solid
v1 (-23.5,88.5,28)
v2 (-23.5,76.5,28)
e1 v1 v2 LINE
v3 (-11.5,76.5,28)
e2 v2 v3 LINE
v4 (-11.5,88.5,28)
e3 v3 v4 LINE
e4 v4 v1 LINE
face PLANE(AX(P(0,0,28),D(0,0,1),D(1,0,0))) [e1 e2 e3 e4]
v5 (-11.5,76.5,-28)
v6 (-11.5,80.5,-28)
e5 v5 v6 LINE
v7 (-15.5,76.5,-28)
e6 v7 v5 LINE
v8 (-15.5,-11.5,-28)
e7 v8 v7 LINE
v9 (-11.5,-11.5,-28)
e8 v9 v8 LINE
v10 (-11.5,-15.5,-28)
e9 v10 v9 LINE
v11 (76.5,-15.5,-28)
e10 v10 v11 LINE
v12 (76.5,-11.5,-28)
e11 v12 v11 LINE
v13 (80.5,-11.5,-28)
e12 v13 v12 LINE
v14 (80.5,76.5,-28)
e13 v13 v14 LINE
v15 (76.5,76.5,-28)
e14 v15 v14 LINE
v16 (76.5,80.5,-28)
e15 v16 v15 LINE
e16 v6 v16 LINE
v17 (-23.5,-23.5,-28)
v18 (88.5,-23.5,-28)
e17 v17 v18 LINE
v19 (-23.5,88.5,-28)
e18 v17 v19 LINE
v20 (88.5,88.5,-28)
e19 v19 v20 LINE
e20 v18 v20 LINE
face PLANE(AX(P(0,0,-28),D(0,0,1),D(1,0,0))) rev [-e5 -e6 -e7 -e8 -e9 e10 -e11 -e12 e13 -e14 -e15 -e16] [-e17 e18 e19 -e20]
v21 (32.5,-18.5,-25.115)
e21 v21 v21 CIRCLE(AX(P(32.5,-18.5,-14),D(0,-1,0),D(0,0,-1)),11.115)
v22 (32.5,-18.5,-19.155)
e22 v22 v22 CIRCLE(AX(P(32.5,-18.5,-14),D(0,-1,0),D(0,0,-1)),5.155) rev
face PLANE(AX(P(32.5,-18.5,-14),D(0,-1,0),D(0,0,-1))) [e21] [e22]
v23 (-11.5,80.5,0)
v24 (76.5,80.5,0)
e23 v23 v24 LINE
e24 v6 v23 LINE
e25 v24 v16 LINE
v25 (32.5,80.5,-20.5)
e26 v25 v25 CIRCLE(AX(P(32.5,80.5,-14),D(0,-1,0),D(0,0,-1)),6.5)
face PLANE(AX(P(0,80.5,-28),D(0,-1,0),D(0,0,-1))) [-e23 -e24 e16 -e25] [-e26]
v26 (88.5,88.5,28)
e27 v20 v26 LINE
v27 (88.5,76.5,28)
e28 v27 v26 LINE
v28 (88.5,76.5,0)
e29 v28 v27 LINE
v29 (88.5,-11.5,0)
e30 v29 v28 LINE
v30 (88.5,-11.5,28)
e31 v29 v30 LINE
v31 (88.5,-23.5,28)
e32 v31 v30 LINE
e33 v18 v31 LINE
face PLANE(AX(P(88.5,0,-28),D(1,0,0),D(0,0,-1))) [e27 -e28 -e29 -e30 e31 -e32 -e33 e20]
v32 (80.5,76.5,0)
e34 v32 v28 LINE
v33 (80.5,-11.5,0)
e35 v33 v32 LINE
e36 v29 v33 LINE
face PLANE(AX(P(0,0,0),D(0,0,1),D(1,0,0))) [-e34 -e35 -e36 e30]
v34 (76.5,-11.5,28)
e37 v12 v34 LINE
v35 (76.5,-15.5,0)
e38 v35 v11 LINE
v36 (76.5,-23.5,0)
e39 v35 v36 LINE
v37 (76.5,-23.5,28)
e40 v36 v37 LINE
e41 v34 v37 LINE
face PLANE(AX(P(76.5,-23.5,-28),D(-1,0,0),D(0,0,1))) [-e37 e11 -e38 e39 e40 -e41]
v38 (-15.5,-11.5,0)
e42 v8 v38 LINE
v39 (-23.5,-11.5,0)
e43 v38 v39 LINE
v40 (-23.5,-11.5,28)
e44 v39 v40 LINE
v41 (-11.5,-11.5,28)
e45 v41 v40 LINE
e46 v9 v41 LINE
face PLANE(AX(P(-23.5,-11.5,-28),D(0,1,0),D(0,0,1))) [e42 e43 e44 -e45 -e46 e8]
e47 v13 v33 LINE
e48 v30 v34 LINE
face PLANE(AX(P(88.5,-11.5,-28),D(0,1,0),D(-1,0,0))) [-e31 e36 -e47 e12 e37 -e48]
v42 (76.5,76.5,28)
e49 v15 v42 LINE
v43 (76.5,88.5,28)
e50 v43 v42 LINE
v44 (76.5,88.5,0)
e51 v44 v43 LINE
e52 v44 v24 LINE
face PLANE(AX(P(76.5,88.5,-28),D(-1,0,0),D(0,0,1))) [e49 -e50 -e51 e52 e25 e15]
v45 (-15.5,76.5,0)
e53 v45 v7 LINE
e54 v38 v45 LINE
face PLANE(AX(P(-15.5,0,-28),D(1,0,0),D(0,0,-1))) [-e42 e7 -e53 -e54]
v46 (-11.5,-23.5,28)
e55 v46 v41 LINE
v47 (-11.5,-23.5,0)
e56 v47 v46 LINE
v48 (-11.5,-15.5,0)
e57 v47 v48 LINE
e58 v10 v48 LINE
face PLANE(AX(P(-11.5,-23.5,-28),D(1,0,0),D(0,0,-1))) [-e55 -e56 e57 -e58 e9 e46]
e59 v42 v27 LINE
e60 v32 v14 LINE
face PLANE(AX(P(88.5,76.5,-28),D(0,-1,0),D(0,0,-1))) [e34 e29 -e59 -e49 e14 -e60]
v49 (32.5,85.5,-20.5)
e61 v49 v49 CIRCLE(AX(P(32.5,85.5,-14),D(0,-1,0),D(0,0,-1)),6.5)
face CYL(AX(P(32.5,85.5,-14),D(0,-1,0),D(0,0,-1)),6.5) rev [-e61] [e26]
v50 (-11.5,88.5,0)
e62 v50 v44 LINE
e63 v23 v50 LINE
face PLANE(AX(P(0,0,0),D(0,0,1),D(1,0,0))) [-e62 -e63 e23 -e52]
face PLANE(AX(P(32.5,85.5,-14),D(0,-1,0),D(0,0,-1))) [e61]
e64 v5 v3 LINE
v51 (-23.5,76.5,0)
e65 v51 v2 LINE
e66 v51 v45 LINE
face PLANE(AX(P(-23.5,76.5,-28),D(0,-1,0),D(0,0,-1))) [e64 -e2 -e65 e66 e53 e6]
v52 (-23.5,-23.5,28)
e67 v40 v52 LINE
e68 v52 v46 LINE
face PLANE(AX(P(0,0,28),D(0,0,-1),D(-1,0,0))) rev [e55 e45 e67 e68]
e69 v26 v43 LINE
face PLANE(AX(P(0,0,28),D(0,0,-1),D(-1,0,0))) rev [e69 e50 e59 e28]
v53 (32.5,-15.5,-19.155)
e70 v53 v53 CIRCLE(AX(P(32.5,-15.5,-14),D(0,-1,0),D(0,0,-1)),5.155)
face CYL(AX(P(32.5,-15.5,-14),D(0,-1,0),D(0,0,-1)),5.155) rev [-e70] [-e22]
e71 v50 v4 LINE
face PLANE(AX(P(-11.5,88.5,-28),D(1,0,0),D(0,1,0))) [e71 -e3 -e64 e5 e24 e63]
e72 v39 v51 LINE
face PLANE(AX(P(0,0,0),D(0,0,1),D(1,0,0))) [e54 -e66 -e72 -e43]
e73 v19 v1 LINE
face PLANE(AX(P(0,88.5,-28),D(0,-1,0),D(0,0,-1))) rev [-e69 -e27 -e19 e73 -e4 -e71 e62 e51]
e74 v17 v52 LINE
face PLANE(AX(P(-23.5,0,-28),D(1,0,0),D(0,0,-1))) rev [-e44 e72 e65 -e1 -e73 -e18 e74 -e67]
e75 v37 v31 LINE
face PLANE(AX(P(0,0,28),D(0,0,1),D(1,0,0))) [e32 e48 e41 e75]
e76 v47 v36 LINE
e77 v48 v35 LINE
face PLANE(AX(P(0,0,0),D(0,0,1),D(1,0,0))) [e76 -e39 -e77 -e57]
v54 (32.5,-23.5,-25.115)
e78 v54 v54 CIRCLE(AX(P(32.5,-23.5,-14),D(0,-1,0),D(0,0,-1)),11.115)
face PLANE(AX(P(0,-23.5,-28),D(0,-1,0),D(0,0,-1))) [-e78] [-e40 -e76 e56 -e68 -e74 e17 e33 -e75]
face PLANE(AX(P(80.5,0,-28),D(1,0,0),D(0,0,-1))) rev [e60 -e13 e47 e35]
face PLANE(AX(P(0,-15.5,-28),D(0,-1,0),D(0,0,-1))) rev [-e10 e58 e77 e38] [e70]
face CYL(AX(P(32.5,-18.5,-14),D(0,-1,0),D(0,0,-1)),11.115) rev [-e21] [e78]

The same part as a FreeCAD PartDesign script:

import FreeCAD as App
import Part
import Sketcher

V = App.Vector
Q = App.Units.Quantity

doc = App.newDocument("Part")
params = doc.addObject("Spreadsheet::Sheet", "Params")
for row, (alias, value) in enumerate([
    ("sketch1_width", "112 mm"),
    ("sketch1_width2", "96 mm"),
    ("pad1_length", "28 mm"),
    ("sketch2_diameter", "10.31 mm"),
    ("pocket1_length", "8 mm"),
    ("sketch3_diameter", "22.23 mm"),
    ("pocket2_length", "5 mm"),
    ("sketch4_diameter", "13 mm"),
    ("pocket3_length", "5 mm"),
    ("sketch5_width", "12 mm"),
    ("pad2_length", "28 mm"),
    ("pad2_length2", "28 mm"),
], start=1):
    params.set(f"A{row}", alias)
    params.set(f"B{row}", "=" + value)
    params.setAlias(f"B{row}", alias)

body = doc.addObject("PartDesign::Body", "Body")

# Sketch on XY plane
sketch1 = body.newObject("Sketcher::SketchObject", "Sketch")
sketch1.AttachmentSupport = (doc.getObject("XY_Plane"), [""])
sketch1.MapMode = "FlatFace"
sketch1.addGeometry(Part.LineSegment(V(-24, 88, 0), V(-24, -24, 0)), False)
sketch1.addGeometry(Part.LineSegment(V(-24, -24, 0), V(88, -24, 0)), False)
sketch1.addGeometry(Part.LineSegment(V(88, -24, 0), V(88, 88, 0)), False)
sketch1.addGeometry(Part.LineSegment(V(88, 88, 0), V(-24, 88, 0)), False)
sketch1.addGeometry(Part.LineSegment(V(80, -16, 0), V(-16, -16, 0)), False)
sketch1.addGeometry(Part.LineSegment(V(-16, -16, 0), V(-16, 80, 0)), False)
sketch1.addGeometry(Part.LineSegment(V(-16, 80, 0), V(80, 80, 0)), False)
sketch1.addGeometry(Part.LineSegment(V(80, 80, 0), V(80, -16, 0)), False)
sketch1.addConstraint(Sketcher.Constraint("Coincident", 0, 2, 1, 1))
sketch1.addConstraint(Sketcher.Constraint("Coincident", 1, 2, 2, 1))
sketch1.addConstraint(Sketcher.Constraint("Coincident", 2, 2, 3, 1))
sketch1.addConstraint(Sketcher.Constraint("Coincident", 3, 2, 0, 1))
sketch1.addConstraint(Sketcher.Constraint("Coincident", 4, 2, 5, 1))
sketch1.addConstraint(Sketcher.Constraint("Coincident", 5, 2, 6, 1))
sketch1.addConstraint(Sketcher.Constraint("Coincident", 6, 2, 7, 1))
sketch1.addConstraint(Sketcher.Constraint("Coincident", 7, 2, 4, 1))
sketch1.addConstraint(Sketcher.Constraint("Vertical", 0))
sketch1.addConstraint(Sketcher.Constraint("Horizontal", 1))
sketch1.addConstraint(Sketcher.Constraint("Vertical", 2))
sketch1.addConstraint(Sketcher.Constraint("Horizontal", 3))
sketch1.addConstraint(Sketcher.Constraint("Horizontal", 4))
sketch1.addConstraint(Sketcher.Constraint("Vertical", 5))
sketch1.addConstraint(Sketcher.Constraint("Horizontal", 6))
sketch1.addConstraint(Sketcher.Constraint("Vertical", 7))
sketch1.addConstraint(Sketcher.Constraint("Equal", 3, 0))
sketch1.addConstraint(Sketcher.Constraint("Equal", 6, 5))
sketch1.addConstraint(Sketcher.Constraint("DistanceX", 1, 1, 1, 2, Q("112 mm")))
sketch1.addConstraint(Sketcher.Constraint("DistanceX", 4, 2, 4, 1, Q("96 mm")))
sketch1.addConstraint(Sketcher.Constraint("DistanceX", 0, 2, 4, 2, Q("8 mm")))
sketch1.addConstraint(Sketcher.Constraint("DistanceY", 0, 2, 4, 2, Q("8 mm")))
sketch1.addConstraint(Sketcher.Constraint("DistanceX", 0, 2, -1, 1, Q("23.5 mm")))
sketch1.addConstraint(Sketcher.Constraint("DistanceY", 0, 2, -1, 1, Q("23.5 mm")))
sketch1.setExpression("Constraints[18]", "Params.sketch1_width")
sketch1.setExpression("Constraints[19]", "Params.sketch1_width2")
pad1 = body.newObject("PartDesign::Pad", "Pad")
pad1.Profile = sketch1
pad1.setExpression("Length", "Params.pad1_length")
pad1.Reversed = True

# Sketch on XZ plane
sketch2 = body.newObject("Sketcher::SketchObject", "Sketch001")
sketch2.AttachmentSupport = (doc.getObject("XZ_Plane"), [""])
sketch2.MapMode = "FlatFace"
sketch2.AttachmentOffset = App.Placement(V(0, 0, 23.5), App.Rotation())
sketch2.addGeometry(Part.Circle(V(32, -14, 0), V(0, 0, 1), 5), False)
sketch2.addConstraint(Sketcher.Constraint("Diameter", 0, Q("10.31 mm")))
sketch2.addConstraint(Sketcher.Constraint("DistanceY", 0, 3, -1, 1, Q("14 mm")))
sketch2.addConstraint(Sketcher.Constraint("DistanceX", -1, 1, 0, 3, Q("32.5 mm")))
sketch2.setExpression("Constraints[0]", "Params.sketch2_diameter")
pocket1 = body.newObject("PartDesign::Pocket", "Pocket")
pocket1.Profile = sketch2
pocket1.setExpression("Length", "Params.pocket1_length")

# Sketch on XZ plane
sketch3 = body.newObject("Sketcher::SketchObject", "Sketch002")
sketch3.AttachmentSupport = (doc.getObject("XZ_Plane"), [""])
sketch3.MapMode = "FlatFace"
sketch3.AttachmentOffset = App.Placement(V(0, 0, 23.5), App.Rotation())
sketch3.addGeometry(Part.Circle(V(32, -14, 0), V(0, 0, 1), 11), False)
sketch3.addConstraint(Sketcher.Constraint("Diameter", 0, Q("22.23 mm")))
sketch3.addConstraint(Sketcher.Constraint("DistanceY", 0, 3, -1, 1, Q("14 mm")))
sketch3.addConstraint(Sketcher.Constraint("DistanceX", -1, 1, 0, 3, Q("32.5 mm")))
sketch3.setExpression("Constraints[0]", "Params.sketch3_diameter")
pocket2 = body.newObject("PartDesign::Pocket", "Pocket001")
pocket2.Profile = sketch3
pocket2.setExpression("Length", "Params.pocket2_length")

# Sketch on XZ plane
sketch4 = body.newObject("Sketcher::SketchObject", "Sketch003")
sketch4.AttachmentSupport = (doc.getObject("XZ_Plane"), [""])
sketch4.MapMode = "FlatFace"
sketch4.AttachmentOffset = App.Placement(V(0, 0, -80.5), App.Rotation())
sketch4.addGeometry(Part.Circle(V(32, -14, 0), V(0, 0, 1), 6), False)
sketch4.addConstraint(Sketcher.Constraint("Diameter", 0, Q("13 mm")))
sketch4.addConstraint(Sketcher.Constraint("DistanceY", 0, 3, -1, 1, Q("14 mm")))
sketch4.addConstraint(Sketcher.Constraint("DistanceX", -1, 1, 0, 3, Q("32.5 mm")))
sketch4.setExpression("Constraints[0]", "Params.sketch4_diameter")
pocket3 = body.newObject("PartDesign::Pocket", "Pocket002")
pocket3.Profile = sketch4
pocket3.setExpression("Length", "Params.pocket3_length")

# Sketch on XY plane
sketch5 = body.newObject("Sketcher::SketchObject", "Sketch004")
sketch5.AttachmentSupport = (doc.getObject("XY_Plane"), [""])
sketch5.MapMode = "FlatFace"
sketch5.addGeometry(Part.LineSegment(V(-24, 88, 0), V(-24, 76, 0)), False)
sketch5.addGeometry(Part.LineSegment(V(-24, 76, 0), V(-12, 76, 0)), False)
sketch5.addGeometry(Part.LineSegment(V(-12, 76, 0), V(-12, 88, 0)), False)
sketch5.addGeometry(Part.LineSegment(V(-12, 88, 0), V(-24, 88, 0)), False)
sketch5.addGeometry(Part.LineSegment(V(-24, -12, 0), V(-24, -24, 0)), False)
sketch5.addGeometry(Part.LineSegment(V(-24, -24, 0), V(-12, -24, 0)), False)
sketch5.addGeometry(Part.LineSegment(V(-12, -24, 0), V(-12, -12, 0)), False)
sketch5.addGeometry(Part.LineSegment(V(-12, -12, 0), V(-24, -12, 0)), False)
sketch5.addGeometry(Part.LineSegment(V(76, -12, 0), V(76, -24, 0)), False)
sketch5.addGeometry(Part.LineSegment(V(76, -24, 0), V(88, -24, 0)), False)
sketch5.addGeometry(Part.LineSegment(V(88, -24, 0), V(88, -12, 0)), False)
sketch5.addGeometry(Part.LineSegment(V(88, -12, 0), V(76, -12, 0)), False)
sketch5.addGeometry(Part.LineSegment(V(76, 88, 0), V(76, 76, 0)), False)
sketch5.addGeometry(Part.LineSegment(V(76, 76, 0), V(88, 76, 0)), False)
sketch5.addGeometry(Part.LineSegment(V(88, 76, 0), V(88, 88, 0)), False)
sketch5.addGeometry(Part.LineSegment(V(88, 88, 0), V(76, 88, 0)), False)
sketch5.addConstraint(Sketcher.Constraint("Coincident", 0, 2, 1, 1))
sketch5.addConstraint(Sketcher.Constraint("Coincident", 1, 2, 2, 1))
sketch5.addConstraint(Sketcher.Constraint("Coincident", 2, 2, 3, 1))
sketch5.addConstraint(Sketcher.Constraint("Coincident", 3, 2, 0, 1))
sketch5.addConstraint(Sketcher.Constraint("Coincident", 4, 2, 5, 1))
sketch5.addConstraint(Sketcher.Constraint("Coincident", 5, 2, 6, 1))
sketch5.addConstraint(Sketcher.Constraint("Coincident", 6, 2, 7, 1))
sketch5.addConstraint(Sketcher.Constraint("Coincident", 7, 2, 4, 1))
sketch5.addConstraint(Sketcher.Constraint("Coincident", 8, 2, 9, 1))
sketch5.addConstraint(Sketcher.Constraint("Coincident", 9, 2, 10, 1))
sketch5.addConstraint(Sketcher.Constraint("Coincident", 10, 2, 11, 1))
sketch5.addConstraint(Sketcher.Constraint("Coincident", 11, 2, 8, 1))
sketch5.addConstraint(Sketcher.Constraint("Coincident", 12, 2, 13, 1))
sketch5.addConstraint(Sketcher.Constraint("Coincident", 13, 2, 14, 1))
sketch5.addConstraint(Sketcher.Constraint("Coincident", 14, 2, 15, 1))
sketch5.addConstraint(Sketcher.Constraint("Coincident", 15, 2, 12, 1))
sketch5.addConstraint(Sketcher.Constraint("Vertical", 0))
sketch5.addConstraint(Sketcher.Constraint("Horizontal", 1))
sketch5.addConstraint(Sketcher.Constraint("Vertical", 2))
sketch5.addConstraint(Sketcher.Constraint("Horizontal", 3))
sketch5.addConstraint(Sketcher.Constraint("Vertical", 4))
sketch5.addConstraint(Sketcher.Constraint("Horizontal", 5))
sketch5.addConstraint(Sketcher.Constraint("Vertical", 6))
sketch5.addConstraint(Sketcher.Constraint("Horizontal", 7))
sketch5.addConstraint(Sketcher.Constraint("Vertical", 8))
sketch5.addConstraint(Sketcher.Constraint("Horizontal", 9))
sketch5.addConstraint(Sketcher.Constraint("Vertical", 10))
sketch5.addConstraint(Sketcher.Constraint("Horizontal", 11))
sketch5.addConstraint(Sketcher.Constraint("Vertical", 12))
sketch5.addConstraint(Sketcher.Constraint("Horizontal", 13))
sketch5.addConstraint(Sketcher.Constraint("Vertical", 14))
sketch5.addConstraint(Sketcher.Constraint("Horizontal", 15))
sketch5.addConstraint(Sketcher.Constraint("Horizontal", 5, 2, 8, 2))
sketch5.addConstraint(Sketcher.Constraint("Horizontal", 7, 2, 10, 2))
sketch5.addConstraint(Sketcher.Constraint("Horizontal", 1, 2, 12, 2))
sketch5.addConstraint(Sketcher.Constraint("Horizontal", 3, 2, 14, 2))
sketch5.addConstraint(Sketcher.Constraint("Vertical", 3, 2, 4, 2))
sketch5.addConstraint(Sketcher.Constraint("Vertical", 2, 2, 5, 2))
sketch5.addConstraint(Sketcher.Constraint("Vertical", 11, 2, 12, 2))
sketch5.addConstraint(Sketcher.Constraint("Vertical", 10, 2, 13, 2))
sketch5.addConstraint(Sketcher.Constraint("Equal", 7, 9))
sketch5.addConstraint(Sketcher.Constraint("Equal", 15, 0))
sketch5.addConstraint(Sketcher.Constraint("Equal", 2, 4))
sketch5.addConstraint(Sketcher.Constraint("DistanceX", 1, 1, 1, 2, Q("12 mm")))
sketch5.addConstraint(Sketcher.Constraint("DistanceY", 4, 2, 0, 2, Q("100 mm")))
sketch5.addConstraint(Sketcher.Constraint("DistanceX", 5, 2, 8, 2, Q("88 mm")))
sketch5.addConstraint(Sketcher.Constraint("DistanceX", 0, 2, -1, 1, Q("23.5 mm")))
sketch5.addConstraint(Sketcher.Constraint("DistanceY", -1, 1, 0, 2, Q("76.5 mm")))
sketch5.setExpression("Constraints[43]", "Params.sketch5_width")
pad2 = body.newObject("PartDesign::Pad", "Pad001")
pad2.Profile = sketch5
pad2.Type = "TwoLengths"
pad2.setExpression("Length", "Params.pad2_length")
pad2.setExpression("Length2", "Params.pad2_length2")

doc.recompute()
